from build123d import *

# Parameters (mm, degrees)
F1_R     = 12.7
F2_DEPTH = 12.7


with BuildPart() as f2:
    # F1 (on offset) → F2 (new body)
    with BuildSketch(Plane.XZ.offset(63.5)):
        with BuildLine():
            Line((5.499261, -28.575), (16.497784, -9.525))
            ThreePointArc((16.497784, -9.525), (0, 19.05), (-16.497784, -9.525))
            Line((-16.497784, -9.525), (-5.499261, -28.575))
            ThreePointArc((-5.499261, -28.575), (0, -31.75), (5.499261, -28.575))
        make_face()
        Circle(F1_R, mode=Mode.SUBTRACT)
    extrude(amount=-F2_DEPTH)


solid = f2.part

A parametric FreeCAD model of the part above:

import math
import FreeCAD as App
import Part
import Sketcher
from FreeCAD import Vector
Q = App.Units.Quantity

doc = App.newDocument("Part")
body = doc.addObject("PartDesign::Body", "Body")

# Sketch on XZ plane
sketch1 = body.newObject("Sketcher::SketchObject", "Sketch")
sketch1.AttachmentSupport = (doc.getObject("XZ_Plane"), [""])
sketch1.MapMode = "FlatFace"
sketch1.AttachmentOffset = App.Placement(Vector(0, 0, 2.5 * 25.4), App.Rotation())
sketch1.addGeometry([
    Part.LineSegment(Vector(5, -29, 0), Vector(16, -10, 0)),  # 0
    Part.ArcOfCircle(Part.Circle(Vector(0, 0, 0), Vector(0, 0, 1), 19), math.radians(-30), math.radians(210)),  # 1
    Part.LineSegment(Vector(-16, -10, 0), Vector(-5, -29, 0)),  # 2
    Part.ArcOfCircle(Part.Circle(Vector(0, -25, 0), Vector(0, 0, 1), 6), math.radians(-150), math.radians(-30)),  # 3
    Part.Circle(Vector(0, 0, 0), Vector(0, 0, 1), 13),  # 4
], False)
sketch1.addConstraint([
    Sketcher.Constraint("Tangent", 0, 2, 1, 1),
    Sketcher.Constraint("Tangent", 1, 2, 2, 1),
    Sketcher.Constraint("Tangent", 2, 2, 3, 1),
    Sketcher.Constraint("Tangent", 3, 2, 0, 1),
    Sketcher.Constraint("Coincident", 1, 3, -1, 1),
    Sketcher.Constraint("Coincident", 4, 3, -1, 1),
    Sketcher.Constraint("PointOnObject", 3, 3, -2),
    Sketcher.Constraint("Diameter", 4, Q("1 in")),
    Sketcher.Constraint("Radius", 1, Q("0.75 in")),
    Sketcher.Constraint("Radius", 3, Q("0.25 in")),
    Sketcher.Constraint("DistanceY", 3, 3, -1, 1, Q("1 in")),
])
pad1 = body.newObject("PartDesign::Pad", "Pad")
pad1.Profile = sketch1
pad1.Length = Q("0.5 in")
pad1.Reversed = True

doc.recompute()
